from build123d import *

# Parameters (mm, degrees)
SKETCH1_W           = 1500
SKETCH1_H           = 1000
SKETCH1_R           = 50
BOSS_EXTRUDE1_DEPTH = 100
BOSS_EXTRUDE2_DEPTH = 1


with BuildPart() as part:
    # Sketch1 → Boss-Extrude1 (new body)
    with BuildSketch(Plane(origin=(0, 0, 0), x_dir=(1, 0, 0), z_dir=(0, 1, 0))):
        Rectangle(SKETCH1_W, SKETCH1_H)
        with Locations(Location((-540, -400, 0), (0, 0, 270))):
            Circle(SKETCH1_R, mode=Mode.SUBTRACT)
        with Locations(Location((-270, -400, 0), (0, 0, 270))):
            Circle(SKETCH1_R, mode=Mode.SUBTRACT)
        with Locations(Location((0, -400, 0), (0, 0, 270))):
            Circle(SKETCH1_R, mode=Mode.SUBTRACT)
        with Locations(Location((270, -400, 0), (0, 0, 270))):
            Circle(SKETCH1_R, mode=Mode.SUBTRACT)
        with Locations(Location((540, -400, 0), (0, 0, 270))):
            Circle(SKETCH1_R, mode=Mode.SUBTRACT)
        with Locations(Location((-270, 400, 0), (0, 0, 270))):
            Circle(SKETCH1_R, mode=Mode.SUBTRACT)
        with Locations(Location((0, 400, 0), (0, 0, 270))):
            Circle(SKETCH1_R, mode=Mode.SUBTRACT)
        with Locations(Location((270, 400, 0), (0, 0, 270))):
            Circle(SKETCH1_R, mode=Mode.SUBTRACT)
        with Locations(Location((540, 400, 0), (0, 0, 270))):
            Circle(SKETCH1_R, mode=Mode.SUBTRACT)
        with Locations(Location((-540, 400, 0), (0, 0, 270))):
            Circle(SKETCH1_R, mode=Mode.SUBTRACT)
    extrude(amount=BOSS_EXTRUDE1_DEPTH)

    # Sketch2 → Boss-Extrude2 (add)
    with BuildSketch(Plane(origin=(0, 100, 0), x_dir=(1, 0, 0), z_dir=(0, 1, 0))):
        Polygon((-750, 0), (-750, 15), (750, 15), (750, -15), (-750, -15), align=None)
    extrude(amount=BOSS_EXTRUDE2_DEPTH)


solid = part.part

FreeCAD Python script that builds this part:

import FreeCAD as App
import Part
import Sketcher

V = App.Vector
Q = App.Units.Quantity


def add_polygon(sketch, points):
    """Adds a closed chain of lines whose ends are joined by coincident constraints."""
    first, n = sketch.GeometryCount, len(points)
    for a, b in zip(points, points[1:] + points[:1]):
        sketch.addGeometry(Part.LineSegment(App.Vector(*a, 0), App.Vector(*b, 0)), False)
    for i in range(n):
        sketch.addConstraint(Sketcher.Constraint("Coincident", first + i, 2, first + (i + 1) % n, 1))

doc = App.newDocument("Part")
params = doc.addObject("Spreadsheet::Sheet", "Params")
for row, (alias, value) in enumerate([
    ("sketch1_diameter", "100 mm"),
    ("sketch1_width", "1500 mm"),
    ("sketch1_height", "1000 mm"),
    ("pad1_length", "100 mm"),
    ("sketch2_width", "1500 mm"),
    ("sketch2_height", "30 mm"),
    ("pad2_length", "1 mm"),
], start=1):
    params.set(f"A{row}", alias)
    params.set(f"B{row}", "=" + value)
    params.setAlias(f"B{row}", alias)

body = doc.addObject("PartDesign::Body", "Body")

# Sketch on XZ plane
sketch1 = doc.addObject("Sketcher::SketchObject", "Sketch")
body.addObject(sketch1)
sketch1.AttachmentSupport = (doc.XZ_Plane, [""])
sketch1.MapMode = "FlatFace"
add_polygon(sketch1, [(-750, -500), (-750, 500), (750, 500), (750, -500)])  # lines 0-3
sketch1.addGeometry(Part.Circle(V(-540, 400, 0), V(0, 0, 1), 50), False)  # 4
sketch1.addGeometry(Part.Circle(V(-270, 400, 0), V(0, 0, 1), 50), False)  # 5
sketch1.addGeometry(Part.Circle(V(0, 400, 0), V(0, 0, 1), 50), False)  # 6
sketch1.addGeometry(Part.Circle(V(270, 400, 0), V(0, 0, 1), 50), False)  # 7
sketch1.addGeometry(Part.Circle(V(540, 400, 0), V(0, 0, 1), 50), False)  # 8
sketch1.addGeometry(Part.Circle(V(-540, -400, 0), V(0, 0, 1), 50), False)  # 9
sketch1.addGeometry(Part.Circle(V(-270, -400, 0), V(0, 0, 1), 50), False)  # 10
sketch1.addGeometry(Part.Circle(V(0, -400, 0), V(0, 0, 1), 50), False)  # 11
sketch1.addGeometry(Part.Circle(V(270, -400, 0), V(0, 0, 1), 50), False)  # 12
sketch1.addGeometry(Part.Circle(V(540, -400, 0), V(0, 0, 1), 50), False)  # 13
sketch1.addConstraint([
    Sketcher.Constraint("Vertical", 0),
    Sketcher.Constraint("Horizontal", 1),
    Sketcher.Constraint("Vertical", 2),
    Sketcher.Constraint("Horizontal", 3),
    Sketcher.Constraint("Equal", 4, 5),
    Sketcher.Constraint("Equal", 5, 6),
    Sketcher.Constraint("Equal", 6, 7),
    Sketcher.Constraint("Equal", 7, 8),
    Sketcher.Constraint("Equal", 8, 9),
    Sketcher.Constraint("Equal", 9, 10),
    Sketcher.Constraint("Equal", 10, 11),
    Sketcher.Constraint("Equal", 11, 12),
    Sketcher.Constraint("Equal", 12, 13),
    Sketcher.Constraint("Symmetric", 8, 3, 9, 3, -1, 1),
    Sketcher.Constraint("Symmetric", 7, 3, 10, 3, -1, 1),
    Sketcher.Constraint("Symmetric", 6, 3, 11, 3, -1, 1),
    Sketcher.Constraint("Symmetric", 5, 3, 12, 3, -1, 1),
    Sketcher.Constraint("Symmetric", 4, 3, 13, 3, -1, 1),
    Sketcher.Constraint("Symmetric", 0, 2, 2, 2, -1, 1),
    Sketcher.Constraint("Symmetric", 5, 3, 7, 3, -2),
    Sketcher.Constraint("Symmetric", 4, 3, 8, 3, -2),
    Sketcher.Constraint("PointOnObject", 6, 3, -2),
    Sketcher.Constraint("Horizontal", 4, 3, 5, 3),
    Sketcher.Constraint("Horizontal", 5, 3, 6, 3),
    Sketcher.Constraint("Diameter", 4, Q("100 mm")),
    Sketcher.Constraint("DistanceX", 1, 1, 1, 2, Q("1500 mm")),
    Sketcher.Constraint("DistanceY", 0, 1, 0, 2, Q("1000 mm")),
    Sketcher.Constraint("DistanceX", 4, 3, -1, 1, Q("540 mm")),
    Sketcher.Constraint("DistanceY", -1, 1, 4, 3, Q("400 mm")),
    Sketcher.Constraint("DistanceX", 5, 3, -1, 1, Q("270 mm")),
])
sketch1.setExpression("Constraints[28]", "Params.sketch1_diameter")
sketch1.setExpression("Constraints[29]", "Params.sketch1_width")
sketch1.setExpression("Constraints[30]", "Params.sketch1_height")
pad1 = doc.addObject("PartDesign::Pad", "Pad")
body.addObject(pad1)
pad1.Profile = sketch1
pad1.setExpression("Length", "Params.pad1_length")
pad1.Reversed = True

# Sketch on XZ plane
sketch2 = doc.addObject("Sketcher::SketchObject", "Sketch001")
body.addObject(sketch2)
sketch2.AttachmentSupport = (doc.XZ_Plane, [""])
sketch2.MapMode = "FlatFace"
sketch2.AttachmentOffset = App.Placement(V(0, 0, -100), App.Rotation())
add_polygon(sketch2, [(-750, -15), (-750, 15), (750, 15), (750, -15)])  # lines 0-3
sketch2.addConstraint([
    Sketcher.Constraint("Vertical", 0),
    Sketcher.Constraint("Horizontal", 1),
    Sketcher.Constraint("Vertical", 2),
    Sketcher.Constraint("Horizontal", 3),
    Sketcher.Constraint("Symmetric", 0, 2, 2, 2, -1, 1),
    Sketcher.Constraint("DistanceX", 1, 1, 1, 2, Q("1500 mm")),
    Sketcher.Constraint("DistanceY", 0, 1, 0, 2, Q("30 mm")),
])
sketch2.setExpression("Constraints[9]", "Params.sketch2_width")
sketch2.setExpression("Constraints[10]", "Params.sketch2_height")
pad2 = doc.addObject("PartDesign::Pad", "Pad001")
body.addObject(pad2)
pad2.Profile = sketch2
pad2.setExpression("Length", "Params.pad2_length")
pad2.Reversed = True

doc.recompute()
